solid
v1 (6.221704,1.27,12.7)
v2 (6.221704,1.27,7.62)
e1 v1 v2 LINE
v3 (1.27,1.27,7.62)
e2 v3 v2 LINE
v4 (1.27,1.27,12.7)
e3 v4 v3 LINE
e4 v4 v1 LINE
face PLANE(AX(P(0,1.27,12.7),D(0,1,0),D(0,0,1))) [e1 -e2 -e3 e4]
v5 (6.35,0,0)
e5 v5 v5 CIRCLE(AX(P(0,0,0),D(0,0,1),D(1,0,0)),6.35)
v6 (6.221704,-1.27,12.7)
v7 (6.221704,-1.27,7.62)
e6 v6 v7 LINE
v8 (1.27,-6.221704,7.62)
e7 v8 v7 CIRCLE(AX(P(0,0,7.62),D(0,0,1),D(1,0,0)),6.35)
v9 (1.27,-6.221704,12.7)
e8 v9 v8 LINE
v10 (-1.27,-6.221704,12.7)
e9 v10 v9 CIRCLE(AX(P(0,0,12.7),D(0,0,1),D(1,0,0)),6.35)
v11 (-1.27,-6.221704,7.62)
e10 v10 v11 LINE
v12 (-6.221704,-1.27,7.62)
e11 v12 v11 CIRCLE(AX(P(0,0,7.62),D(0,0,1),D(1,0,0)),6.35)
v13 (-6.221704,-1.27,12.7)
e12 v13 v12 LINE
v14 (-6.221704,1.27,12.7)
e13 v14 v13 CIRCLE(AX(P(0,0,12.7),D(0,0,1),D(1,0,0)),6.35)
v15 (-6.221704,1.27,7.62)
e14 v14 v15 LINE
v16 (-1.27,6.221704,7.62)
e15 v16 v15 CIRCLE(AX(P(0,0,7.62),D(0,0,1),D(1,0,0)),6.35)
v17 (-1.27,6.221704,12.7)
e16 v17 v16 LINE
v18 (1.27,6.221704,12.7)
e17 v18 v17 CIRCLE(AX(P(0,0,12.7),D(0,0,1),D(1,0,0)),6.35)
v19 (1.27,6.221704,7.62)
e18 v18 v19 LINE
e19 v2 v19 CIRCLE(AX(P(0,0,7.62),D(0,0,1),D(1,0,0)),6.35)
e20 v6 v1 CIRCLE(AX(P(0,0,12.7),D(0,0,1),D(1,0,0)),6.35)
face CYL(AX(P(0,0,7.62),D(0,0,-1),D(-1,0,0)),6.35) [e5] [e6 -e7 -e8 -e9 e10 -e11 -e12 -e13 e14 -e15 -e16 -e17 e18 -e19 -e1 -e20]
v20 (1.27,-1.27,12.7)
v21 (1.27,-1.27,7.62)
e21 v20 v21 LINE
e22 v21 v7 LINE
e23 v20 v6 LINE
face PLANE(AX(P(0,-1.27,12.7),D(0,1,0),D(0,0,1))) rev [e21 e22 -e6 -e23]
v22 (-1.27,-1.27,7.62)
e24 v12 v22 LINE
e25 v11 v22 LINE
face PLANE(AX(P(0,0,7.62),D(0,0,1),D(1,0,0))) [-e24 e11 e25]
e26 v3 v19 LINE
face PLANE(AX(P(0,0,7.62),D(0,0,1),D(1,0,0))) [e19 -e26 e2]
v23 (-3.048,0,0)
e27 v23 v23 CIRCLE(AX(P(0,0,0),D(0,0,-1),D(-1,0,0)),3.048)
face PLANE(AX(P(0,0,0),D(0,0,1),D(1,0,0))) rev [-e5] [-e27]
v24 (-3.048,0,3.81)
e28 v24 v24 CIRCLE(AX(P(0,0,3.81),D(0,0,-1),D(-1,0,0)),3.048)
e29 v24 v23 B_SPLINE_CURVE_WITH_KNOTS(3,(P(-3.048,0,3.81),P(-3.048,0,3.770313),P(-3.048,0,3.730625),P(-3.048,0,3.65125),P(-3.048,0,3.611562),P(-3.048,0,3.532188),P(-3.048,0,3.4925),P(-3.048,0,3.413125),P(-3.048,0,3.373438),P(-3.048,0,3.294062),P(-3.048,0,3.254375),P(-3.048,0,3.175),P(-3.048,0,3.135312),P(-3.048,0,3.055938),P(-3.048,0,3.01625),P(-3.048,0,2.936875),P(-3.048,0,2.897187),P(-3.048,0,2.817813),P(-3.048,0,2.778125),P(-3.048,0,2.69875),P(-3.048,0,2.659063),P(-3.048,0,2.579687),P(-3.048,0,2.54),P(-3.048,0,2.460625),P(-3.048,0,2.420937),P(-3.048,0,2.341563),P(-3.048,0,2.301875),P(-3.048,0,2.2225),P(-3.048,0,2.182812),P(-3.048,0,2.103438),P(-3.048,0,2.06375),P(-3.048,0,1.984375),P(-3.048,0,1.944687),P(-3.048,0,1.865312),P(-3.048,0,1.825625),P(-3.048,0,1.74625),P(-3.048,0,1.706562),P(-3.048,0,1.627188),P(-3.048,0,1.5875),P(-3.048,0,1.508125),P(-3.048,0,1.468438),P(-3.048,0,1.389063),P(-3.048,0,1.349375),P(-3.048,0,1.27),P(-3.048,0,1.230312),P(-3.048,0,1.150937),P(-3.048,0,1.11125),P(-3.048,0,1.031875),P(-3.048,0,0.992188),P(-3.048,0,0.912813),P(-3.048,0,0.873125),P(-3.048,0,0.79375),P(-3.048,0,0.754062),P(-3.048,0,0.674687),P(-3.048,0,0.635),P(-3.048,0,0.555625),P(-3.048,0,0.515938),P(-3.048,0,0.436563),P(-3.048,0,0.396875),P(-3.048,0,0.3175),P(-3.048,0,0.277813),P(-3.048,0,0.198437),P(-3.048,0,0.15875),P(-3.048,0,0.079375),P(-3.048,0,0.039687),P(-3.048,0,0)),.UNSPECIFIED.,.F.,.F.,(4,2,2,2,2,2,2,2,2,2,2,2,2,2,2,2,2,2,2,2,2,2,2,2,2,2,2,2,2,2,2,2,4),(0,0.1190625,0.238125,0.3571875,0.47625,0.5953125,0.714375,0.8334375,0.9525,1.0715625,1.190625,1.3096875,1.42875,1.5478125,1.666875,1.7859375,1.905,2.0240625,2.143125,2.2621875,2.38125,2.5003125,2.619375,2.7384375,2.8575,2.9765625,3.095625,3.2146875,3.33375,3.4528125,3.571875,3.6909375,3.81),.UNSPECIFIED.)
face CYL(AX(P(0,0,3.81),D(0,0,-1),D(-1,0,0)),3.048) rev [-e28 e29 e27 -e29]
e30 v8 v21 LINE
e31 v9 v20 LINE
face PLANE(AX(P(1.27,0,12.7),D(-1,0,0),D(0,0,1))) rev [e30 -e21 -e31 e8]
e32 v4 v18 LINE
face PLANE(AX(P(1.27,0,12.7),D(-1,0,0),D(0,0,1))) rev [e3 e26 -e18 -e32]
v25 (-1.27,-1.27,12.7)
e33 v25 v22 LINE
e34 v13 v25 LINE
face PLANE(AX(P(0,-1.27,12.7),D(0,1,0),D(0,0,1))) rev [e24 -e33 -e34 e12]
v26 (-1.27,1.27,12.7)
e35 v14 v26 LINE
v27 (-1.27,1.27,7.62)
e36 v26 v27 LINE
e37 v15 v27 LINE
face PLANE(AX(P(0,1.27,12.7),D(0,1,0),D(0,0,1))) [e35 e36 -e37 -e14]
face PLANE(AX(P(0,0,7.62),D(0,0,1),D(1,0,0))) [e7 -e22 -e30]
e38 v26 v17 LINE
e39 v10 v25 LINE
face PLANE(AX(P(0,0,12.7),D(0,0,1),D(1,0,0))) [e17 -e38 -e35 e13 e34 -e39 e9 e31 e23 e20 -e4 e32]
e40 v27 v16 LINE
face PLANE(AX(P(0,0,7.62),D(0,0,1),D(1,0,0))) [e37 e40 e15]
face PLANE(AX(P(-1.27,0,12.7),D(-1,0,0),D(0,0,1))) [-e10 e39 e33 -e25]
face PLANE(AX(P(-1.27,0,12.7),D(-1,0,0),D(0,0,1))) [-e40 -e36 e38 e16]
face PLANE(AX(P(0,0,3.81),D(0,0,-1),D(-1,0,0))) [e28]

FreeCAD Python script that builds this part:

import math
import FreeCAD as App
import Part
import Sketcher
Q = App.Units.Quantity

doc = App.newDocument("Part")
body = doc.addObject("PartDesign::Body", "Body")

# Sketch on XY plane
sketch1 = doc.addObject("Sketcher::SketchObject", "Sketch")
body.addObject(sketch1)
sketch1.AttachmentSupport = (doc.XY_Plane, [""])
sketch1.MapMode = "FlatFace"
sketch1.addGeometry(Part.Circle(App.Vector(0, 0, 0), App.Vector(0, 0, 1), 6), False)
sketch1.addConstraint([
    Sketcher.Constraint("Coincident", 0, 3, -1, 1),
    Sketcher.Constraint("Diameter", 0, Q("0.5 in")),
])
pad1 = doc.addObject("PartDesign::Pad", "Pad")
body.addObject(pad1)
pad1.Profile = sketch1
pad1.Length = Q("0.3 in")

# Sketch on XY plane
sketch2 = doc.addObject("Sketcher::SketchObject", "Sketch001")
body.addObject(sketch2)
sketch2.AttachmentSupport = (doc.XY_Plane, [""])
sketch2.MapMode = "FlatFace"
sketch2.AttachmentOffset = App.Placement(App.Vector(0, 0, 0.3 * 25.4), App.Rotation())
sketch2.addGeometry([
    Part.ArcOfCircle(Part.Circle(App.Vector(0, 0, 0), App.Vector(0, 0, 1), 6.4), math.radians(78), math.radians(102)),  # 0
    Part.LineSegment(App.Vector(-1.3, 6.2, 0), App.Vector(-1.3, 1.3, 0)),  # 1
    Part.LineSegment(App.Vector(-1.3, 1.3, 0), App.Vector(-6.2, 1.3, 0)),  # 2
    Part.ArcOfCircle(Part.Circle(App.Vector(0, 0, 0), App.Vector(0, 0, 1), 6.4), math.radians(168), math.radians(192)),  # 3
    Part.LineSegment(App.Vector(-6.2, -1.3, 0), App.Vector(-1.3, -1.3, 0)),  # 4
    Part.LineSegment(App.Vector(-1.3, -1.3, 0), App.Vector(-1.3, -6.2, 0)),  # 5
    Part.ArcOfCircle(Part.Circle(App.Vector(0, 0, 0), App.Vector(0, 0, 1), 6.4), math.radians(-102), math.radians(-78)),  # 6
    Part.LineSegment(App.Vector(1.3, -6.2, 0), App.Vector(1.3, -1.3, 0)),  # 7
    Part.LineSegment(App.Vector(1.3, -1.3, 0), App.Vector(6.2, -1.3, 0)),  # 8
    Part.ArcOfCircle(Part.Circle(App.Vector(0, 0, 0), App.Vector(0, 0, 1), 6.3), math.radians(-11.54), math.radians(0)),  # 9
    Part.ArcOfCircle(Part.Circle(App.Vector(0, 0, 0), App.Vector(0, 0, 1), 6.3), math.radians(0), math.radians(11.54)),  # 10
    Part.LineSegment(App.Vector(6.2, 1.3, 0), App.Vector(1.3, 1.3, 0)),  # 11
    Part.LineSegment(App.Vector(1.3, 1.3, 0), App.Vector(1.3, 6.2, 0)),  # 12
], False)
sketch2.addConstraint([
    Sketcher.Constraint("Coincident", 0, 2, 1, 1),
    Sketcher.Constraint("Coincident", 1, 2, 2, 1),
    Sketcher.Constraint("Coincident", 2, 2, 3, 1),
    Sketcher.Constraint("Coincident", 3, 2, 4, 1),
    Sketcher.Constraint("Coincident", 4, 2, 5, 1),
    Sketcher.Constraint("Coincident", 5, 2, 6, 1),
    Sketcher.Constraint("Coincident", 6, 2, 7, 1),
    Sketcher.Constraint("Coincident", 7, 2, 8, 1),
    Sketcher.Constraint("Coincident", 8, 2, 9, 1),
    Sketcher.Constraint("Tangent", 9, 2, 10, 1),
    Sketcher.Constraint("Coincident", 10, 2, 11, 1),
    Sketcher.Constraint("Coincident", 11, 2, 12, 1),
    Sketcher.Constraint("Coincident", 12, 2, 0, 1),
    Sketcher.Constraint("Vertical", 1),
    Sketcher.Constraint("Horizontal", 2),
    Sketcher.Constraint("Horizontal", 4),
    Sketcher.Constraint("Vertical", 5),
    Sketcher.Constraint("Vertical", 7),
    Sketcher.Constraint("Horizontal", 8),
    Sketcher.Constraint("Horizontal", 11),
    Sketcher.Constraint("Vertical", 12),
    Sketcher.Constraint("Coincident", 0, 3, -1, 1),
    Sketcher.Constraint("Coincident", 3, 3, -1, 1),
    Sketcher.Constraint("Coincident", 6, 3, -1, 1),
    Sketcher.Constraint("Coincident", 9, 3, -1, 1),
    Sketcher.Constraint("Equal", 0, 3),
    Sketcher.Constraint("Equal", 3, 6),
    Sketcher.Constraint("Equal", 6, 9),
    Sketcher.Constraint("Equal", 9, 10),
    Sketcher.Constraint("Symmetric", 1, 2, 7, 2, -1, 1),
    Sketcher.Constraint("Symmetric", 4, 2, 11, 2, -1, 1),
    Sketcher.Constraint("Symmetric", 4, 2, 7, 2, -2),
    Sketcher.Constraint("PointOnObject", 9, 2, -1),
    Sketcher.Constraint("Equal", 11, 1),
    Sketcher.Constraint("Radius", 0, Q("0.25 in")),
    Sketcher.Constraint("DistanceY", 3, 2, 2, 2, Q("0.1 in")),
])
pad2 = doc.addObject("PartDesign::Pad", "Pad001")
body.addObject(pad2)
pad2.Profile = sketch2
pad2.Length = Q("0.2 in")

# Sketch on XY plane
sketch3 = doc.addObject("Sketcher::SketchObject", "Sketch002")
body.addObject(sketch3)
sketch3.AttachmentSupport = (doc.XY_Plane, [""])
sketch3.MapMode = "FlatFace"
sketch3.addGeometry(Part.Circle(App.Vector(0, 0, 0), App.Vector(0, 0, 1), 3), False)
sketch3.addConstraint([
    Sketcher.Constraint("Coincident", 0, 3, -1, 1),
    Sketcher.Constraint("Diameter", 0, Q("0.24 in")),
])
pocket1 = doc.addObject("PartDesign::Pocket", "Pocket")
body.addObject(pocket1)
pocket1.Profile = sketch3
pocket1.Length = Q("0.15 in")
pocket1.Reversed = True

doc.recompute()
